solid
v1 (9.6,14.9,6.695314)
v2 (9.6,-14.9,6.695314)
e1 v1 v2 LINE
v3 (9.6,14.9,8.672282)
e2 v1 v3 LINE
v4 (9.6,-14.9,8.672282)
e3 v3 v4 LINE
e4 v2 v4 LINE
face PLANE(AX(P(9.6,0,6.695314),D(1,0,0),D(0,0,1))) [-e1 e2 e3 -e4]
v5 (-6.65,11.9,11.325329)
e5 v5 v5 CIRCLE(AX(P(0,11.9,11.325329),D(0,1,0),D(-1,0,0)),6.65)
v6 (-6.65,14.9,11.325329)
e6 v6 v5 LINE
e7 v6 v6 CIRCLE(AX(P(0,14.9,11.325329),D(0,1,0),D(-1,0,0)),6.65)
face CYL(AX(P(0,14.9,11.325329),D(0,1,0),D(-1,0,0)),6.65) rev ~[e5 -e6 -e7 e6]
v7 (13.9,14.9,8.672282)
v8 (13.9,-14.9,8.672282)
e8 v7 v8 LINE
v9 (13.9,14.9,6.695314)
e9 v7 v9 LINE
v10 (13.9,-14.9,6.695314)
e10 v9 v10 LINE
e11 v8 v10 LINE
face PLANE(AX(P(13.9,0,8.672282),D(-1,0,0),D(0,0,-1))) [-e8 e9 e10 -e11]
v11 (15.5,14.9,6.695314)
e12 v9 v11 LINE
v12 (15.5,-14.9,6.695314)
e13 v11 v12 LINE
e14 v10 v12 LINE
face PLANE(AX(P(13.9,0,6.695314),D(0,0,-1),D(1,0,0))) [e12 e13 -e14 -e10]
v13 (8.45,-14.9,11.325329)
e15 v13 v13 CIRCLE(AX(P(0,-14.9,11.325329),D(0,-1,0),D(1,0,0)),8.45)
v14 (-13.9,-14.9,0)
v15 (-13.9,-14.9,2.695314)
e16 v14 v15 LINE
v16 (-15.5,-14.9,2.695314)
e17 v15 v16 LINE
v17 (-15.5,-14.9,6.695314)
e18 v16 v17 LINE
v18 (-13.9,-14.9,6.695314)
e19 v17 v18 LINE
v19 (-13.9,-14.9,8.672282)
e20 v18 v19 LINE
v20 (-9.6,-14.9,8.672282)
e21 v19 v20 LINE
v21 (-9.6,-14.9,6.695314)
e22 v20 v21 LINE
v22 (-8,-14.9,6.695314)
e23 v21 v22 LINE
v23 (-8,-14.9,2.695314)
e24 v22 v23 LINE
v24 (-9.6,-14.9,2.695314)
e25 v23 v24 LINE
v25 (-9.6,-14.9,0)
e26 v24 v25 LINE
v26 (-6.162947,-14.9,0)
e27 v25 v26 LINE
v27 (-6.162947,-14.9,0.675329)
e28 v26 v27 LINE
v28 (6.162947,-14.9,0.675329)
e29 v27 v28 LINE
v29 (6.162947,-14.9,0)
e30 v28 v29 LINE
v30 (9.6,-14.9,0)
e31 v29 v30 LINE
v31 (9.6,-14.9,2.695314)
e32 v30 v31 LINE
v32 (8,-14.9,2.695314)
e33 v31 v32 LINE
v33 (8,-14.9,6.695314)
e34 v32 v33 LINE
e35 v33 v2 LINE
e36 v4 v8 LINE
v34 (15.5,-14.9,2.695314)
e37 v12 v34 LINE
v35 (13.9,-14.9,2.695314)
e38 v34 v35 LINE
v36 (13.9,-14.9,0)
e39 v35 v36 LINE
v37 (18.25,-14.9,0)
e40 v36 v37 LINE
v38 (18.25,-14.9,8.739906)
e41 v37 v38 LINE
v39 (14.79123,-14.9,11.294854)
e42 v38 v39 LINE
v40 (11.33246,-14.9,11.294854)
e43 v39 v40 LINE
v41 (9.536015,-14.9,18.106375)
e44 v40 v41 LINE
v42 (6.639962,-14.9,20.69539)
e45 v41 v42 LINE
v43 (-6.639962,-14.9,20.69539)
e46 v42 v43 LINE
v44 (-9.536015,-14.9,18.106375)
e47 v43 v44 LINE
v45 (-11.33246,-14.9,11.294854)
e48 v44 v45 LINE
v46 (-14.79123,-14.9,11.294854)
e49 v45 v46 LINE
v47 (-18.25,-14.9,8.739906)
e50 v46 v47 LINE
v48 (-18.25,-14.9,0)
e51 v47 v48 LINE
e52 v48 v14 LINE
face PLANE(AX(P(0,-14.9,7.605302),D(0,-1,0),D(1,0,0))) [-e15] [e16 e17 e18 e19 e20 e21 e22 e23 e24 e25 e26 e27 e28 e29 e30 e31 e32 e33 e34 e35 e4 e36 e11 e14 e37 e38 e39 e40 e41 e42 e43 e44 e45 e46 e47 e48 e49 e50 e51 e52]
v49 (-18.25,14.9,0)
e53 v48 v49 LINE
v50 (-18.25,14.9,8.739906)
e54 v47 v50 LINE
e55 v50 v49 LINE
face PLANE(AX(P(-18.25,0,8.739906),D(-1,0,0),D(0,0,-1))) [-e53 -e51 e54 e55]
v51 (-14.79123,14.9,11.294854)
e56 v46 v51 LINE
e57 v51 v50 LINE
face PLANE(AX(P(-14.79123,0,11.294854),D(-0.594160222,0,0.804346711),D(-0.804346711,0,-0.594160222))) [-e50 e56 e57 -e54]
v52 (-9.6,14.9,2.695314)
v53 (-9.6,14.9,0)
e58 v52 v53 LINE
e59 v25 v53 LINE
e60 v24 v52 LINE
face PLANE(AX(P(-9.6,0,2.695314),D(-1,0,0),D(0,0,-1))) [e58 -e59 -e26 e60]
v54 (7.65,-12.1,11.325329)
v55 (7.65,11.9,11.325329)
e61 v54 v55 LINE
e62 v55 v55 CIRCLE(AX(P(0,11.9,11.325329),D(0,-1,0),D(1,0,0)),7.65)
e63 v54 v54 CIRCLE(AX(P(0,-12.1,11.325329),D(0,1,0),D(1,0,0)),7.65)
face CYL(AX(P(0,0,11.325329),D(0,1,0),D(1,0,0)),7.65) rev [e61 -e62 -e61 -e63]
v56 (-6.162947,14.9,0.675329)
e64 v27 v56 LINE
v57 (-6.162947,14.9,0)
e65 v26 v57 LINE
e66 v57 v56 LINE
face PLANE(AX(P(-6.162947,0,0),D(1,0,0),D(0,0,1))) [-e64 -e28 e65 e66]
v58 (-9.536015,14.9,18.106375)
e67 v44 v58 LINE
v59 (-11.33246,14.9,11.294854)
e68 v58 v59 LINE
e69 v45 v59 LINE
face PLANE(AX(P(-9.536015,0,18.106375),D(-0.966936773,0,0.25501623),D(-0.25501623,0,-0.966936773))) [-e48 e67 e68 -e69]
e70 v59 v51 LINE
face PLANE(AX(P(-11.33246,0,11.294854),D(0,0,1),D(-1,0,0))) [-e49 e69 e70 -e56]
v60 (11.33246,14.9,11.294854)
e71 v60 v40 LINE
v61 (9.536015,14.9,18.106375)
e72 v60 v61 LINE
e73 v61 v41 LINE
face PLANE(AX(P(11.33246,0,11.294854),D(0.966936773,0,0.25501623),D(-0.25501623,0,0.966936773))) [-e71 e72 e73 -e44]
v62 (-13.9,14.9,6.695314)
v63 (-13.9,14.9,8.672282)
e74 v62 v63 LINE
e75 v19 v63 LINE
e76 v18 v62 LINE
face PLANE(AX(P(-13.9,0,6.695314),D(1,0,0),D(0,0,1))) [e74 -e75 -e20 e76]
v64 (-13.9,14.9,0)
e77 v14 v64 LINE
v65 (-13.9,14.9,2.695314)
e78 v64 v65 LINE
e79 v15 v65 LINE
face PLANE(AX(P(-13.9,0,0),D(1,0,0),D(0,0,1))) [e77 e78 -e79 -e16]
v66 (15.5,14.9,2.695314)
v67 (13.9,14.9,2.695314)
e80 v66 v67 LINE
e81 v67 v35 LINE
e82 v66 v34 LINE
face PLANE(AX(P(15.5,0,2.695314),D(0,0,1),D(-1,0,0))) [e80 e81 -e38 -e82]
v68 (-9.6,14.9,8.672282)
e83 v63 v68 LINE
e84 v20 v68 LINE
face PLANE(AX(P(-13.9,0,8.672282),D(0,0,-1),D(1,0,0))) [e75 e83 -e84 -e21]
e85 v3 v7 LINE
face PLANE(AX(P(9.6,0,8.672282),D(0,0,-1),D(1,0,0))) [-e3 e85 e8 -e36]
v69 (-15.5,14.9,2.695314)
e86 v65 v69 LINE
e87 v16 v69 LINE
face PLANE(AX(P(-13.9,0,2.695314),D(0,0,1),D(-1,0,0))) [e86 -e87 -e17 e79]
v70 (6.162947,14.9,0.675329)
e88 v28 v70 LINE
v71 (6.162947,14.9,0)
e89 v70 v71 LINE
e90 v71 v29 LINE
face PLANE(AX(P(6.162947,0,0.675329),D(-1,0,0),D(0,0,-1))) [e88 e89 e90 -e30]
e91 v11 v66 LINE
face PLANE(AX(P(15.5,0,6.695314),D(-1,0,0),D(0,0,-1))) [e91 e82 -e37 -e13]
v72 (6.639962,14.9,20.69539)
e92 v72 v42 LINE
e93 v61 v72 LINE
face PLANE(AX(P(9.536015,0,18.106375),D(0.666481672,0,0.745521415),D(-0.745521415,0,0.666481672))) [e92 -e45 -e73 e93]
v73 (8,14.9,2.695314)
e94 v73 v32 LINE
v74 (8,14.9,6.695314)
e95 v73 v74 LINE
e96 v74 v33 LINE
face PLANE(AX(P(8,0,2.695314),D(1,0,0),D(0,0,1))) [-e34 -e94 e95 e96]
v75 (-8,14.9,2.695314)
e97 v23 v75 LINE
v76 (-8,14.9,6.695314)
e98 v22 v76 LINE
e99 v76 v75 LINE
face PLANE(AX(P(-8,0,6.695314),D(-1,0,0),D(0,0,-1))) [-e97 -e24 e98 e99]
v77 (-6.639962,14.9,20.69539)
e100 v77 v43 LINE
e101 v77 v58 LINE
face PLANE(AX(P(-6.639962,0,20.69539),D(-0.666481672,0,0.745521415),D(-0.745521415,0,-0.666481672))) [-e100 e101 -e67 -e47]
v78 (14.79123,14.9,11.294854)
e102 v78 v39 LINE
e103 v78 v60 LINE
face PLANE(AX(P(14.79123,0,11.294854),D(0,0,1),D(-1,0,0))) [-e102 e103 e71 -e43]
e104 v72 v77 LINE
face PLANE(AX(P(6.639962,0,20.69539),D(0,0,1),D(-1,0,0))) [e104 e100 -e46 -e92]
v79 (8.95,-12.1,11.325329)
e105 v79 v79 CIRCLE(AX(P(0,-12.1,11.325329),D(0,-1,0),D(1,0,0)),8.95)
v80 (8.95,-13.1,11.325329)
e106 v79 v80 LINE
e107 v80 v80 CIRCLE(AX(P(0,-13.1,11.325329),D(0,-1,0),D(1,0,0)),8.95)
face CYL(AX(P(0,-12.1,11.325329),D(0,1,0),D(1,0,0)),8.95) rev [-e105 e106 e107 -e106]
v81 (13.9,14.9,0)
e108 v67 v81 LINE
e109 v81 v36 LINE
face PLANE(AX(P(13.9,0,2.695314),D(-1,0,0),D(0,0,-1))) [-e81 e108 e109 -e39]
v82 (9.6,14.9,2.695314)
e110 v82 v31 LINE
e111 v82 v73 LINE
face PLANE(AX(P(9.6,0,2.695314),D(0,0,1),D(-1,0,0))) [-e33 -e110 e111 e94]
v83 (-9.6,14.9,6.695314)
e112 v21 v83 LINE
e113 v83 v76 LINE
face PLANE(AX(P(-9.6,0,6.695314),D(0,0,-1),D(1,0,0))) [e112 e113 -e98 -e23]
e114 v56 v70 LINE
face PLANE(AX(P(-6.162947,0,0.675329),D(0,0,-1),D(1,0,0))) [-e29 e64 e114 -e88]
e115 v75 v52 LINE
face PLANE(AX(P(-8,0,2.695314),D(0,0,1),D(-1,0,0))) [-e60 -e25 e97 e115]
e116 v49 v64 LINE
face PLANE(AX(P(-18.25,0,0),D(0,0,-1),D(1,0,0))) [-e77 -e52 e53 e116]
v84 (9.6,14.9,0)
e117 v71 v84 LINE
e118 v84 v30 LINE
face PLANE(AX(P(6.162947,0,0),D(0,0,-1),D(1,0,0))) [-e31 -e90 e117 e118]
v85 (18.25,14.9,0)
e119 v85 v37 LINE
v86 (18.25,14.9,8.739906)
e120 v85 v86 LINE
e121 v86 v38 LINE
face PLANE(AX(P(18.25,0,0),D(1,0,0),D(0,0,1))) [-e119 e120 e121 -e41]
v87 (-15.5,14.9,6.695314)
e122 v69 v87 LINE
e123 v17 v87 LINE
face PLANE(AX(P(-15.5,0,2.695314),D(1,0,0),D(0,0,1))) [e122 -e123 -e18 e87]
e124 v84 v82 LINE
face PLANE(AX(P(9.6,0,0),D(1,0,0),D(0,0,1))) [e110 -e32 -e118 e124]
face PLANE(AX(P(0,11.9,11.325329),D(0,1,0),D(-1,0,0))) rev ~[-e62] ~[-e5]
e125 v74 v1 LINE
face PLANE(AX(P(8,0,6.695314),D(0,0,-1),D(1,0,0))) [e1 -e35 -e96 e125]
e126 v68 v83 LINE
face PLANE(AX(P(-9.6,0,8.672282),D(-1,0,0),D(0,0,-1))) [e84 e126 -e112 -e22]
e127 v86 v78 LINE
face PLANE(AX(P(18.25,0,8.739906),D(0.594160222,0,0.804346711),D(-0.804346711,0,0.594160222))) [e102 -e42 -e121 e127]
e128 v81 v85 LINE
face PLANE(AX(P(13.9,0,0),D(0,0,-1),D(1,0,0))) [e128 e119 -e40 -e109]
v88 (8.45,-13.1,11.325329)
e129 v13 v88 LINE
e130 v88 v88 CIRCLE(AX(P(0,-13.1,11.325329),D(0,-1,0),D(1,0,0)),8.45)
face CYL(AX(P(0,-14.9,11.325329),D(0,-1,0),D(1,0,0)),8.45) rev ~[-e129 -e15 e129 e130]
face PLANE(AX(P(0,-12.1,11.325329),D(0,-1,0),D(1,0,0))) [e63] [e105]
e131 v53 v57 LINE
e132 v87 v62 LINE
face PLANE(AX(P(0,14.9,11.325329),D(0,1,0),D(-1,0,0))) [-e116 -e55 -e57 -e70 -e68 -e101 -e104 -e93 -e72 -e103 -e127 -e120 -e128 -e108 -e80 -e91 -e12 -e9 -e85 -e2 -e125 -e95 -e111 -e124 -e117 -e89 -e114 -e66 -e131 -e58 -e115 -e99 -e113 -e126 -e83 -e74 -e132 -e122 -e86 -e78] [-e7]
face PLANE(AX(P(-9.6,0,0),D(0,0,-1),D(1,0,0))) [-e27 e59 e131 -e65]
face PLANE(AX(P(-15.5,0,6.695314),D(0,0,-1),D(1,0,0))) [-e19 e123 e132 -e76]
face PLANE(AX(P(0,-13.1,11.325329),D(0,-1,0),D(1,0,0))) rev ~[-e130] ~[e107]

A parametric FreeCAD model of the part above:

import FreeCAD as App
import Part
import Sketcher

V = App.Vector
Q = App.Units.Quantity


def add_polygon(sketch, points):
    """Adds a closed chain of lines whose ends are joined by coincident constraints."""
    first, n = sketch.GeometryCount, len(points)
    for a, b in zip(points, points[1:] + points[:1]):
        sketch.addGeometry(Part.LineSegment(App.Vector(*a, 0), App.Vector(*b, 0)), False)
    for i in range(n):
        sketch.addConstraint(Sketcher.Constraint("Coincident", first + i, 2, first + (i + 1) % n, 1))

doc = App.newDocument("Part")
body = doc.addObject("PartDesign::Body", "Body")

# Sketch on XZ plane
sketch1 = body.newObject("Sketcher::SketchObject", "Sketch")
sketch1.AttachmentSupport = (doc.getObject("XZ_Plane"), [""])
sketch1.MapMode = "FlatFace"
add_polygon(sketch1, [(6.162947, 0.675329), (6.162947, 0), (9.6, 0), (9.6, 2.695314), (8, 2.695314), (8, 6.695314), (9.6, 6.695314), (9.6, 8.672282), (13.9, 8.672282), (13.9, 6.695314), (15.5, 6.695314), (15.5, 2.695314), (13.9, 2.695314), (13.9, 0), (18.25, 0), (18.25, 8.739906), (14.79123, 11.294854), (11.33246, 11.294854), (9.536015, 18.106375), (6.639962, 20.69539), (-6.639962, 20.69539), (-9.536015, 18.106375), (-11.33246, 11.294854), (-14.79123, 11.294854), (-18.25, 8.739906), (-18.25, 0), (-13.9, 0), (-13.9, 2.695314), (-15.5, 2.695314), (-15.5, 6.695314), (-13.9, 6.695314), (-13.9, 8.672282), (-9.6, 8.672282), (-9.6, 6.695314), (-8, 6.695314), (-8, 2.695314), (-9.6, 2.695314), (-9.6, 0), (-6.162947, 0), (-6.162947, 0.675329)])  # lines 0-39
sketch1.addGeometry(Part.Circle(V(0, 11.325329, 0), V(0, 0, 1), 7.65), False)  # 40
sketch1.addConstraint(Sketcher.Constraint("Vertical", 0))
sketch1.addConstraint(Sketcher.Constraint("Horizontal", 1))
sketch1.addConstraint(Sketcher.Constraint("Vertical", 2))
sketch1.addConstraint(Sketcher.Constraint("Horizontal", 3))
sketch1.addConstraint(Sketcher.Constraint("Vertical", 4))
sketch1.addConstraint(Sketcher.Constraint("Horizontal", 5))
sketch1.addConstraint(Sketcher.Constraint("Vertical", 6))
sketch1.addConstraint(Sketcher.Constraint("Horizontal", 7))
sketch1.addConstraint(Sketcher.Constraint("Vertical", 8))
sketch1.addConstraint(Sketcher.Constraint("Horizontal", 9))
sketch1.addConstraint(Sketcher.Constraint("Vertical", 10))
sketch1.addConstraint(Sketcher.Constraint("Horizontal", 11))
sketch1.addConstraint(Sketcher.Constraint("Vertical", 12))
sketch1.addConstraint(Sketcher.Constraint("Horizontal", 13))
sketch1.addConstraint(Sketcher.Constraint("Vertical", 14))
sketch1.addConstraint(Sketcher.Constraint("Horizontal", 16))
sketch1.addConstraint(Sketcher.Constraint("Horizontal", 19))
sketch1.addConstraint(Sketcher.Constraint("Horizontal", 22))
sketch1.addConstraint(Sketcher.Constraint("Vertical", 24))
sketch1.addConstraint(Sketcher.Constraint("Horizontal", 25))
sketch1.addConstraint(Sketcher.Constraint("Vertical", 26))
sketch1.addConstraint(Sketcher.Constraint("Horizontal", 27))
sketch1.addConstraint(Sketcher.Constraint("Vertical", 28))
sketch1.addConstraint(Sketcher.Constraint("Horizontal", 29))
sketch1.addConstraint(Sketcher.Constraint("Vertical", 30))
sketch1.addConstraint(Sketcher.Constraint("Horizontal", 31))
sketch1.addConstraint(Sketcher.Constraint("Vertical", 32))
sketch1.addConstraint(Sketcher.Constraint("Horizontal", 33))
sketch1.addConstraint(Sketcher.Constraint("Vertical", 34))
sketch1.addConstraint(Sketcher.Constraint("Horizontal", 35))
sketch1.addConstraint(Sketcher.Constraint("Vertical", 36))
sketch1.addConstraint(Sketcher.Constraint("Horizontal", 37))
sketch1.addConstraint(Sketcher.Constraint("Vertical", 38))
sketch1.addConstraint(Sketcher.Constraint("Horizontal", 39))
sketch1.addConstraint(Sketcher.Constraint("Symmetric", 13, 2, 24, 2, -1, 1))
sketch1.addConstraint(Sketcher.Constraint("Symmetric", 1, 2, 36, 2, -1, 1))
sketch1.addConstraint(Sketcher.Constraint("Symmetric", 17, 2, 20, 2, -2))
sketch1.addConstraint(Sketcher.Constraint("Symmetric", 16, 2, 21, 2, -2))
sketch1.addConstraint(Sketcher.Constraint("Symmetric", 12, 2, 25, 2, -2))
sketch1.addConstraint(Sketcher.Constraint("Symmetric", 10, 2, 27, 2, -2))
sketch1.addConstraint(Sketcher.Constraint("Symmetric", 8, 2, 29, 2, -2))
sketch1.addConstraint(Sketcher.Constraint("Symmetric", 6, 2, 31, 2, -2))
sketch1.addConstraint(Sketcher.Constraint("Symmetric", 4, 2, 33, 2, -2))
sketch1.addConstraint(Sketcher.Constraint("Symmetric", 0, 2, 37, 2, -2))
sketch1.addConstraint(Sketcher.Constraint("PointOnObject", 40, 3, -2))
sketch1.addConstraint(Sketcher.Constraint("Horizontal", 5, 2, 8, 2))
sketch1.addConstraint(Sketcher.Constraint("Horizontal", 3, 2, 10, 2))
sketch1.addConstraint(Sketcher.Constraint("Horizontal", 14, 2, 23, 2))
sketch1.addConstraint(Sketcher.Constraint("Horizontal", 27, 2, 34, 2))
sketch1.addConstraint(Sketcher.Constraint("Vertical", 2, 2, 5, 2))
sketch1.addConstraint(Sketcher.Constraint("Vertical", 8, 2, 11, 2))
sketch1.addConstraint(Sketcher.Constraint("Equal", 5, 9))
sketch1.addConstraint(Sketcher.Constraint("Equal", 16, 22))
sketch1.addConstraint(Sketcher.Constraint("Equal", 18, 20))
sketch1.addConstraint(Sketcher.Constraint("Diameter", 40, Q("15.3 mm")))
sketch1.addConstraint(Sketcher.Constraint("DistanceY", 4, 1, 4, 2, Q("4 mm")))
sketch1.addConstraint(Sketcher.Constraint("DistanceX", 3, 2, 3, 1, Q("1.6 mm")))
sketch1.addConstraint(Sketcher.Constraint("DistanceX", 7, 1, 7, 2, Q("4.3 mm")))
sketch1.addConstraint(Sketcher.Constraint("DistanceX", -1, 1, 3, 2, Q("8 mm")))
sketch1.addConstraint(Sketcher.Constraint("DistanceX", 13, 1, 13, 2, Q("4.35 mm")))
sketch1.addConstraint(Sketcher.Constraint("Distance", 15, Q("4.300099 mm")))
sketch1.addConstraint(Sketcher.Constraint("Distance", 18, Q("3.884601 mm")))
sketch1.addConstraint(Sketcher.Constraint("DistanceX", 16, 2, 16, 1, Q("3.45877 mm")))
sketch1.addConstraint(Sketcher.Constraint("DistanceY", 0, 2, 0, 1, Q("0.675329 mm")))
sketch1.addConstraint(Sketcher.Constraint("DistanceY", 6, 1, 6, 2, Q("1.976968 mm")))
sketch1.addConstraint(Sketcher.Constraint("DistanceX", 1, 1, 1, 2, Q("3.437053 mm")))
sketch1.addConstraint(Sketcher.Constraint("DistanceX", 19, 2, 19, 1, Q("13.279924 mm")))
sketch1.addConstraint(Sketcher.Constraint("DistanceY", 2, 1, 2, 2, Q("2.695314 mm")))
sketch1.addConstraint(Sketcher.Constraint("DistanceY", 14, 1, 14, 2, Q("8.739906 mm")))
sketch1.addConstraint(Sketcher.Constraint("DistanceY", -1, 1, 40, 3, Q("11.325329 mm")))
sketch1.addConstraint(Sketcher.Constraint("DistanceX", -1, 1, 15, 2, Q("14.79123 mm")))
sketch1.addConstraint(Sketcher.Constraint("DistanceY", -1, 1, 18, 2, Q("20.69539 mm")))
sketch1.addConstraint(Sketcher.Constraint("DistanceY", 16, 2, 17, 2, Q("6.811521 mm")))
pad1 = body.newObject("PartDesign::Pad", "Pad")
pad1.Profile = sketch1
pad1.Length = 29.8
pad1.Midplane = True

# Sketch on XZ plane
sketch2 = body.newObject("Sketcher::SketchObject", "Sketch001")
sketch2.AttachmentSupport = (doc.getObject("XZ_Plane"), [""])
sketch2.MapMode = "FlatFace"
sketch2.AttachmentOffset = App.Placement(V(0, 0, 12.1), App.Rotation())
sketch2.addGeometry(Part.Circle(V(0, 11.325329, 0), V(0, 0, 1), 8.95), False)
sketch2.addConstraint(Sketcher.Constraint("PointOnObject", 0, 3, -2))
sketch2.addConstraint(Sketcher.Constraint("Diameter", 0, Q("17.9 mm")))
sketch2.addConstraint(Sketcher.Constraint("DistanceY", -1, 1, 0, 3, Q("11.325329 mm")))
pocket1 = body.newObject("PartDesign::Pocket", "Pocket")
pocket1.Profile = sketch2
pocket1.Length = 1
pocket1.Reversed = True

# Sketch on XZ plane
sketch3 = body.newObject("Sketcher::SketchObject", "Sketch002")
sketch3.AttachmentSupport = (doc.getObject("XZ_Plane"), [""])
sketch3.MapMode = "FlatFace"
sketch3.AttachmentOffset = App.Placement(V(0, 0, -14.9), App.Rotation())
sketch3.addGeometry(Part.Circle(V(0, 11.325329, 0), V(0, 0, 1), 7.65), False)
sketch3.addGeometry(Part.Circle(V(0, 11.325329, 0), V(0, 0, 1), 6.65), False)
sketch3.addConstraint(Sketcher.Constraint("Coincident", 1, 3, 0, 3))
sketch3.addConstraint(Sketcher.Constraint("PointOnObject", 0, 3, -2))
sketch3.addConstraint(Sketcher.Constraint("Diameter", 0, Q("15.3 mm")))
sketch3.addConstraint(Sketcher.Constraint("Diameter", 1, Q("13.3 mm")))
sketch3.addConstraint(Sketcher.Constraint("DistanceY", -1, 1, 0, 3, Q("11.325329 mm")))
pad2 = body.newObject("PartDesign::Pad", "Pad001")
pad2.Profile = sketch3
pad2.Length = 3

# Sketch on XZ plane
sketch4 = body.newObject("Sketcher::SketchObject", "Sketch003")
sketch4.AttachmentSupport = (doc.getObject("XZ_Plane"), [""])
sketch4.MapMode = "FlatFace"
sketch4.AttachmentOffset = App.Placement(V(0, 0, 14.9), App.Rotation())
sketch4.addGeometry(Part.Circle(V(0, 11.325329, 0), V(0, 0, 1), 8.45), False)
sketch4.addConstraint(Sketcher.Constraint("PointOnObject", 0, 3, -2))
sketch4.addConstraint(Sketcher.Constraint("Diameter", 0, Q("16.9 mm")))
sketch4.addConstraint(Sketcher.Constraint("DistanceY", -1, 1, 0, 3, Q("11.325329 mm")))
pocket2 = body.newObject("PartDesign::Pocket", "Pocket001")
pocket2.Profile = sketch4
pocket2.Length = 2.8

doc.recompute()
